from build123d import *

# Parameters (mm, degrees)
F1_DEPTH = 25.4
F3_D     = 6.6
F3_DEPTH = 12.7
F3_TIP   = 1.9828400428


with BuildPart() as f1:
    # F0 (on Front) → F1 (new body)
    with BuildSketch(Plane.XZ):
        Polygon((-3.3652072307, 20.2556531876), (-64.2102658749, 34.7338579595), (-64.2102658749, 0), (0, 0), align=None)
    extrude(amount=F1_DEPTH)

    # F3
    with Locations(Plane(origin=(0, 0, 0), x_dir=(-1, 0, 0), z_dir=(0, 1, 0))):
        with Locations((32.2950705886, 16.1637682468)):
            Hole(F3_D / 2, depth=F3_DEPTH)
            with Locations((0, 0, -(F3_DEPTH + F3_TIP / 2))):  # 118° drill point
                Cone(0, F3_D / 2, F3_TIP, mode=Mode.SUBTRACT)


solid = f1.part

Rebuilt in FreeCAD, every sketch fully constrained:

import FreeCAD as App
import Part
import Sketcher

V = App.Vector
Q = App.Units.Quantity


def add_polygon(sketch, points):
    """Adds a closed chain of lines whose ends are joined by coincident constraints."""
    first, n = sketch.GeometryCount, len(points)
    for a, b in zip(points, points[1:] + points[:1]):
        sketch.addGeometry(Part.LineSegment(App.Vector(*a, 0), App.Vector(*b, 0)), False)
    for i in range(n):
        sketch.addConstraint(Sketcher.Constraint("Coincident", first + i, 2, first + (i + 1) % n, 1))

doc = App.newDocument("Part")
body = doc.addObject("PartDesign::Body", "Body")

# Sketch on XZ plane
sketch1 = doc.addObject("Sketcher::SketchObject", "Sketch")
body.addObject(sketch1)
sketch1.AttachmentSupport = (doc.XZ_Plane, [""])
sketch1.MapMode = "FlatFace"
add_polygon(sketch1, [(-3, 20), (-64, 35), (-64, 0), (0, 0)])  # lines 0-3
sketch1.addConstraint([
    Sketcher.Constraint("Vertical", 1),
    Sketcher.Constraint("Horizontal", 2),
    Sketcher.Constraint("Coincident", 2, 2, -1, 1),
    Sketcher.Constraint("Distance", 0, 62.543901),
    Sketcher.Constraint("DistanceX", 2, 1, 2, 2, 64.210266),
    Sketcher.Constraint("DistanceY", 1, 2, 1, 1, 34.733858),
    Sketcher.Constraint("DistanceX", 0, 2, 3, 2, 60.845059),
])
pad1 = doc.addObject("PartDesign::Pad", "Pad")
body.addObject(pad1)
pad1.Profile = sketch1
pad1.Length = Q("1 in")

# Sketch on XZ plane
sketch2 = doc.addObject("Sketcher::SketchObject", "Sketch001")
body.addObject(sketch2)
sketch2.AttachmentSupport = (doc.XZ_Plane, [""])
sketch2.MapMode = "FlatFace"
sketch2.addGeometry(Part.Circle(V(-32.3, 16.2, 0), V(0, 0, 1), 3.3), False)
sketch2.addConstraint([
    Sketcher.Constraint("Diameter", 0, 6.6),
    Sketcher.Constraint("DistanceX", 0, 3, -1, 1, 32.295071),
    Sketcher.Constraint("DistanceY", -1, 1, 0, 3, 16.163768),
])
doc.recompute()
hole = doc.addObject("PartDesign::Hole", "Hole")
body.addObject(hole)
hole.Profile = sketch2
hole.ThreadType = "None"
hole.Diameter = 6.6
hole.DepthType = "Dimension"
hole.Depth = Q("0.5 in")
hole.DrillPoint = "Angled"
hole.DrillPointAngle = 118
hole.Reversed = True

doc.recompute()
